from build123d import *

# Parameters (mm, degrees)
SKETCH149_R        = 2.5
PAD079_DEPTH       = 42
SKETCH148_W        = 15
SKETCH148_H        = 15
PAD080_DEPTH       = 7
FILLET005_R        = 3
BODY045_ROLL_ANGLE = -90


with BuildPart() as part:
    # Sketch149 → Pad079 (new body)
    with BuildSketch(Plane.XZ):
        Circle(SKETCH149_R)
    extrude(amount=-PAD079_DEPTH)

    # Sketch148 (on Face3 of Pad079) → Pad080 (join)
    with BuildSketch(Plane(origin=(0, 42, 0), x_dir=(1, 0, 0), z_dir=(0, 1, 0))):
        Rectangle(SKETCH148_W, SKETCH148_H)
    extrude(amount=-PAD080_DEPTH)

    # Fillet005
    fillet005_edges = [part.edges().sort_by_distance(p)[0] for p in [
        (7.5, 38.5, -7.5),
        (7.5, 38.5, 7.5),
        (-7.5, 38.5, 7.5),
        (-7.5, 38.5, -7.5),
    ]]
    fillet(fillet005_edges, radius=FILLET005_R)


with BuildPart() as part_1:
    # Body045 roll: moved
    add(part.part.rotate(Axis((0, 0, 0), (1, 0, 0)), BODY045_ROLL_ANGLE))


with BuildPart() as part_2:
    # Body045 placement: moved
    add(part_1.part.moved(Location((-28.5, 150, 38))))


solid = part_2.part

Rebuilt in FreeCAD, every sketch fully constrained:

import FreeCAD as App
import Part
import Sketcher

V = App.Vector
Q = App.Units.Quantity


def edges_at(feature, points):
    """Names of the edges that pass closest to the given points."""
    edges = feature.Shape.Edges
    near = lambda p: min(range(len(edges)), key=lambda i: edges[i].distToShape(Part.Vertex(*p))[0])
    return sorted({f"Edge{near(p) + 1}" for p in points})


def add_polygon(sketch, points):
    """Adds a closed chain of lines whose ends are joined by coincident constraints."""
    first, n = sketch.GeometryCount, len(points)
    for a, b in zip(points, points[1:] + points[:1]):
        sketch.addGeometry(Part.LineSegment(App.Vector(*a, 0), App.Vector(*b, 0)), False)
    for i in range(n):
        sketch.addConstraint(Sketcher.Constraint("Coincident", first + i, 2, first + (i + 1) % n, 1))

doc = App.newDocument("Part")
body = doc.addObject("PartDesign::Body", "Body")

sketch1 = body.newObject("Sketcher::SketchObject", "Sketch")
sketch1.AttachmentSupport = (doc.getObject("XZ_Plane"), [""])
sketch1.MapMode = "FlatFace"
sketch1.addGeometry(Part.Circle(V(0, 0, 0), V(0, 0, 1), 2.5), False)
sketch1.addConstraint(Sketcher.Constraint("Coincident", 0, 3, -1, 1))
sketch1.addConstraint(Sketcher.Constraint("Diameter", 0, Q("5 mm")))
pad1 = body.newObject("PartDesign::Pad", "Pad")
pad1.Profile = sketch1
pad1.Length = 42
pad1.Reversed = True

sketch2 = body.newObject("Sketcher::SketchObject", "Sketch001")
sketch2.AttachmentSupport = (doc.getObject("XZ_Plane"), [""])
sketch2.MapMode = "FlatFace"
sketch2.AttachmentOffset = App.Placement(V(0, 0, -42), App.Rotation())
add_polygon(sketch2, [(-8, -8), (-8, 8), (8, 8), (8, -8)])
sketch2.addConstraint(Sketcher.Constraint("Vertical", 0))
sketch2.addConstraint(Sketcher.Constraint("Horizontal", 1))
sketch2.addConstraint(Sketcher.Constraint("Vertical", 2))
sketch2.addConstraint(Sketcher.Constraint("Horizontal", 3))
sketch2.addConstraint(Sketcher.Constraint("Symmetric", 0, 2, 2, 2, -1, 1))
sketch2.addConstraint(Sketcher.Constraint("Equal", 3, 0))
sketch2.addConstraint(Sketcher.Constraint("DistanceX", 1, 1, 1, 2, Q("15 mm")))
pad2 = body.newObject("PartDesign::Pad", "Pad001")
pad2.Profile = sketch2
pad2.Length = 7
doc.recompute()

fillet = body.newObject("PartDesign::Fillet", "Fillet")
fillet.Base = (pad2, edges_at(pad2, [
    (7.5, 38.5, -7.5),
    (7.5, 38.5, 7.5),
    (-7.5, 38.5, 7.5),
    (-7.5, 38.5, -7.5),
]))
fillet.Radius = 3
body2 = doc.addObject("PartDesign::Body", "Body001")
doc.recompute()

body.Placement = App.Placement(V(0, 0, 0), App.Rotation(V(1, 0, 0), 270))
boolean = body2.newObject("PartDesign::Boolean", "Boolean")
boolean.Type = "Fuse"
boolean.addObjects([body])
body3 = doc.addObject("PartDesign::Body", "Body002")
doc.recompute()

body2.Placement = App.Placement(V(-28.5, 150, 38), App.Rotation(V(0, 0, 1), 0))
boolean2 = body3.newObject("PartDesign::Boolean", "Boolean001")
boolean2.Type = "Fuse"
boolean2.addObjects([body2])

doc.recompute()
